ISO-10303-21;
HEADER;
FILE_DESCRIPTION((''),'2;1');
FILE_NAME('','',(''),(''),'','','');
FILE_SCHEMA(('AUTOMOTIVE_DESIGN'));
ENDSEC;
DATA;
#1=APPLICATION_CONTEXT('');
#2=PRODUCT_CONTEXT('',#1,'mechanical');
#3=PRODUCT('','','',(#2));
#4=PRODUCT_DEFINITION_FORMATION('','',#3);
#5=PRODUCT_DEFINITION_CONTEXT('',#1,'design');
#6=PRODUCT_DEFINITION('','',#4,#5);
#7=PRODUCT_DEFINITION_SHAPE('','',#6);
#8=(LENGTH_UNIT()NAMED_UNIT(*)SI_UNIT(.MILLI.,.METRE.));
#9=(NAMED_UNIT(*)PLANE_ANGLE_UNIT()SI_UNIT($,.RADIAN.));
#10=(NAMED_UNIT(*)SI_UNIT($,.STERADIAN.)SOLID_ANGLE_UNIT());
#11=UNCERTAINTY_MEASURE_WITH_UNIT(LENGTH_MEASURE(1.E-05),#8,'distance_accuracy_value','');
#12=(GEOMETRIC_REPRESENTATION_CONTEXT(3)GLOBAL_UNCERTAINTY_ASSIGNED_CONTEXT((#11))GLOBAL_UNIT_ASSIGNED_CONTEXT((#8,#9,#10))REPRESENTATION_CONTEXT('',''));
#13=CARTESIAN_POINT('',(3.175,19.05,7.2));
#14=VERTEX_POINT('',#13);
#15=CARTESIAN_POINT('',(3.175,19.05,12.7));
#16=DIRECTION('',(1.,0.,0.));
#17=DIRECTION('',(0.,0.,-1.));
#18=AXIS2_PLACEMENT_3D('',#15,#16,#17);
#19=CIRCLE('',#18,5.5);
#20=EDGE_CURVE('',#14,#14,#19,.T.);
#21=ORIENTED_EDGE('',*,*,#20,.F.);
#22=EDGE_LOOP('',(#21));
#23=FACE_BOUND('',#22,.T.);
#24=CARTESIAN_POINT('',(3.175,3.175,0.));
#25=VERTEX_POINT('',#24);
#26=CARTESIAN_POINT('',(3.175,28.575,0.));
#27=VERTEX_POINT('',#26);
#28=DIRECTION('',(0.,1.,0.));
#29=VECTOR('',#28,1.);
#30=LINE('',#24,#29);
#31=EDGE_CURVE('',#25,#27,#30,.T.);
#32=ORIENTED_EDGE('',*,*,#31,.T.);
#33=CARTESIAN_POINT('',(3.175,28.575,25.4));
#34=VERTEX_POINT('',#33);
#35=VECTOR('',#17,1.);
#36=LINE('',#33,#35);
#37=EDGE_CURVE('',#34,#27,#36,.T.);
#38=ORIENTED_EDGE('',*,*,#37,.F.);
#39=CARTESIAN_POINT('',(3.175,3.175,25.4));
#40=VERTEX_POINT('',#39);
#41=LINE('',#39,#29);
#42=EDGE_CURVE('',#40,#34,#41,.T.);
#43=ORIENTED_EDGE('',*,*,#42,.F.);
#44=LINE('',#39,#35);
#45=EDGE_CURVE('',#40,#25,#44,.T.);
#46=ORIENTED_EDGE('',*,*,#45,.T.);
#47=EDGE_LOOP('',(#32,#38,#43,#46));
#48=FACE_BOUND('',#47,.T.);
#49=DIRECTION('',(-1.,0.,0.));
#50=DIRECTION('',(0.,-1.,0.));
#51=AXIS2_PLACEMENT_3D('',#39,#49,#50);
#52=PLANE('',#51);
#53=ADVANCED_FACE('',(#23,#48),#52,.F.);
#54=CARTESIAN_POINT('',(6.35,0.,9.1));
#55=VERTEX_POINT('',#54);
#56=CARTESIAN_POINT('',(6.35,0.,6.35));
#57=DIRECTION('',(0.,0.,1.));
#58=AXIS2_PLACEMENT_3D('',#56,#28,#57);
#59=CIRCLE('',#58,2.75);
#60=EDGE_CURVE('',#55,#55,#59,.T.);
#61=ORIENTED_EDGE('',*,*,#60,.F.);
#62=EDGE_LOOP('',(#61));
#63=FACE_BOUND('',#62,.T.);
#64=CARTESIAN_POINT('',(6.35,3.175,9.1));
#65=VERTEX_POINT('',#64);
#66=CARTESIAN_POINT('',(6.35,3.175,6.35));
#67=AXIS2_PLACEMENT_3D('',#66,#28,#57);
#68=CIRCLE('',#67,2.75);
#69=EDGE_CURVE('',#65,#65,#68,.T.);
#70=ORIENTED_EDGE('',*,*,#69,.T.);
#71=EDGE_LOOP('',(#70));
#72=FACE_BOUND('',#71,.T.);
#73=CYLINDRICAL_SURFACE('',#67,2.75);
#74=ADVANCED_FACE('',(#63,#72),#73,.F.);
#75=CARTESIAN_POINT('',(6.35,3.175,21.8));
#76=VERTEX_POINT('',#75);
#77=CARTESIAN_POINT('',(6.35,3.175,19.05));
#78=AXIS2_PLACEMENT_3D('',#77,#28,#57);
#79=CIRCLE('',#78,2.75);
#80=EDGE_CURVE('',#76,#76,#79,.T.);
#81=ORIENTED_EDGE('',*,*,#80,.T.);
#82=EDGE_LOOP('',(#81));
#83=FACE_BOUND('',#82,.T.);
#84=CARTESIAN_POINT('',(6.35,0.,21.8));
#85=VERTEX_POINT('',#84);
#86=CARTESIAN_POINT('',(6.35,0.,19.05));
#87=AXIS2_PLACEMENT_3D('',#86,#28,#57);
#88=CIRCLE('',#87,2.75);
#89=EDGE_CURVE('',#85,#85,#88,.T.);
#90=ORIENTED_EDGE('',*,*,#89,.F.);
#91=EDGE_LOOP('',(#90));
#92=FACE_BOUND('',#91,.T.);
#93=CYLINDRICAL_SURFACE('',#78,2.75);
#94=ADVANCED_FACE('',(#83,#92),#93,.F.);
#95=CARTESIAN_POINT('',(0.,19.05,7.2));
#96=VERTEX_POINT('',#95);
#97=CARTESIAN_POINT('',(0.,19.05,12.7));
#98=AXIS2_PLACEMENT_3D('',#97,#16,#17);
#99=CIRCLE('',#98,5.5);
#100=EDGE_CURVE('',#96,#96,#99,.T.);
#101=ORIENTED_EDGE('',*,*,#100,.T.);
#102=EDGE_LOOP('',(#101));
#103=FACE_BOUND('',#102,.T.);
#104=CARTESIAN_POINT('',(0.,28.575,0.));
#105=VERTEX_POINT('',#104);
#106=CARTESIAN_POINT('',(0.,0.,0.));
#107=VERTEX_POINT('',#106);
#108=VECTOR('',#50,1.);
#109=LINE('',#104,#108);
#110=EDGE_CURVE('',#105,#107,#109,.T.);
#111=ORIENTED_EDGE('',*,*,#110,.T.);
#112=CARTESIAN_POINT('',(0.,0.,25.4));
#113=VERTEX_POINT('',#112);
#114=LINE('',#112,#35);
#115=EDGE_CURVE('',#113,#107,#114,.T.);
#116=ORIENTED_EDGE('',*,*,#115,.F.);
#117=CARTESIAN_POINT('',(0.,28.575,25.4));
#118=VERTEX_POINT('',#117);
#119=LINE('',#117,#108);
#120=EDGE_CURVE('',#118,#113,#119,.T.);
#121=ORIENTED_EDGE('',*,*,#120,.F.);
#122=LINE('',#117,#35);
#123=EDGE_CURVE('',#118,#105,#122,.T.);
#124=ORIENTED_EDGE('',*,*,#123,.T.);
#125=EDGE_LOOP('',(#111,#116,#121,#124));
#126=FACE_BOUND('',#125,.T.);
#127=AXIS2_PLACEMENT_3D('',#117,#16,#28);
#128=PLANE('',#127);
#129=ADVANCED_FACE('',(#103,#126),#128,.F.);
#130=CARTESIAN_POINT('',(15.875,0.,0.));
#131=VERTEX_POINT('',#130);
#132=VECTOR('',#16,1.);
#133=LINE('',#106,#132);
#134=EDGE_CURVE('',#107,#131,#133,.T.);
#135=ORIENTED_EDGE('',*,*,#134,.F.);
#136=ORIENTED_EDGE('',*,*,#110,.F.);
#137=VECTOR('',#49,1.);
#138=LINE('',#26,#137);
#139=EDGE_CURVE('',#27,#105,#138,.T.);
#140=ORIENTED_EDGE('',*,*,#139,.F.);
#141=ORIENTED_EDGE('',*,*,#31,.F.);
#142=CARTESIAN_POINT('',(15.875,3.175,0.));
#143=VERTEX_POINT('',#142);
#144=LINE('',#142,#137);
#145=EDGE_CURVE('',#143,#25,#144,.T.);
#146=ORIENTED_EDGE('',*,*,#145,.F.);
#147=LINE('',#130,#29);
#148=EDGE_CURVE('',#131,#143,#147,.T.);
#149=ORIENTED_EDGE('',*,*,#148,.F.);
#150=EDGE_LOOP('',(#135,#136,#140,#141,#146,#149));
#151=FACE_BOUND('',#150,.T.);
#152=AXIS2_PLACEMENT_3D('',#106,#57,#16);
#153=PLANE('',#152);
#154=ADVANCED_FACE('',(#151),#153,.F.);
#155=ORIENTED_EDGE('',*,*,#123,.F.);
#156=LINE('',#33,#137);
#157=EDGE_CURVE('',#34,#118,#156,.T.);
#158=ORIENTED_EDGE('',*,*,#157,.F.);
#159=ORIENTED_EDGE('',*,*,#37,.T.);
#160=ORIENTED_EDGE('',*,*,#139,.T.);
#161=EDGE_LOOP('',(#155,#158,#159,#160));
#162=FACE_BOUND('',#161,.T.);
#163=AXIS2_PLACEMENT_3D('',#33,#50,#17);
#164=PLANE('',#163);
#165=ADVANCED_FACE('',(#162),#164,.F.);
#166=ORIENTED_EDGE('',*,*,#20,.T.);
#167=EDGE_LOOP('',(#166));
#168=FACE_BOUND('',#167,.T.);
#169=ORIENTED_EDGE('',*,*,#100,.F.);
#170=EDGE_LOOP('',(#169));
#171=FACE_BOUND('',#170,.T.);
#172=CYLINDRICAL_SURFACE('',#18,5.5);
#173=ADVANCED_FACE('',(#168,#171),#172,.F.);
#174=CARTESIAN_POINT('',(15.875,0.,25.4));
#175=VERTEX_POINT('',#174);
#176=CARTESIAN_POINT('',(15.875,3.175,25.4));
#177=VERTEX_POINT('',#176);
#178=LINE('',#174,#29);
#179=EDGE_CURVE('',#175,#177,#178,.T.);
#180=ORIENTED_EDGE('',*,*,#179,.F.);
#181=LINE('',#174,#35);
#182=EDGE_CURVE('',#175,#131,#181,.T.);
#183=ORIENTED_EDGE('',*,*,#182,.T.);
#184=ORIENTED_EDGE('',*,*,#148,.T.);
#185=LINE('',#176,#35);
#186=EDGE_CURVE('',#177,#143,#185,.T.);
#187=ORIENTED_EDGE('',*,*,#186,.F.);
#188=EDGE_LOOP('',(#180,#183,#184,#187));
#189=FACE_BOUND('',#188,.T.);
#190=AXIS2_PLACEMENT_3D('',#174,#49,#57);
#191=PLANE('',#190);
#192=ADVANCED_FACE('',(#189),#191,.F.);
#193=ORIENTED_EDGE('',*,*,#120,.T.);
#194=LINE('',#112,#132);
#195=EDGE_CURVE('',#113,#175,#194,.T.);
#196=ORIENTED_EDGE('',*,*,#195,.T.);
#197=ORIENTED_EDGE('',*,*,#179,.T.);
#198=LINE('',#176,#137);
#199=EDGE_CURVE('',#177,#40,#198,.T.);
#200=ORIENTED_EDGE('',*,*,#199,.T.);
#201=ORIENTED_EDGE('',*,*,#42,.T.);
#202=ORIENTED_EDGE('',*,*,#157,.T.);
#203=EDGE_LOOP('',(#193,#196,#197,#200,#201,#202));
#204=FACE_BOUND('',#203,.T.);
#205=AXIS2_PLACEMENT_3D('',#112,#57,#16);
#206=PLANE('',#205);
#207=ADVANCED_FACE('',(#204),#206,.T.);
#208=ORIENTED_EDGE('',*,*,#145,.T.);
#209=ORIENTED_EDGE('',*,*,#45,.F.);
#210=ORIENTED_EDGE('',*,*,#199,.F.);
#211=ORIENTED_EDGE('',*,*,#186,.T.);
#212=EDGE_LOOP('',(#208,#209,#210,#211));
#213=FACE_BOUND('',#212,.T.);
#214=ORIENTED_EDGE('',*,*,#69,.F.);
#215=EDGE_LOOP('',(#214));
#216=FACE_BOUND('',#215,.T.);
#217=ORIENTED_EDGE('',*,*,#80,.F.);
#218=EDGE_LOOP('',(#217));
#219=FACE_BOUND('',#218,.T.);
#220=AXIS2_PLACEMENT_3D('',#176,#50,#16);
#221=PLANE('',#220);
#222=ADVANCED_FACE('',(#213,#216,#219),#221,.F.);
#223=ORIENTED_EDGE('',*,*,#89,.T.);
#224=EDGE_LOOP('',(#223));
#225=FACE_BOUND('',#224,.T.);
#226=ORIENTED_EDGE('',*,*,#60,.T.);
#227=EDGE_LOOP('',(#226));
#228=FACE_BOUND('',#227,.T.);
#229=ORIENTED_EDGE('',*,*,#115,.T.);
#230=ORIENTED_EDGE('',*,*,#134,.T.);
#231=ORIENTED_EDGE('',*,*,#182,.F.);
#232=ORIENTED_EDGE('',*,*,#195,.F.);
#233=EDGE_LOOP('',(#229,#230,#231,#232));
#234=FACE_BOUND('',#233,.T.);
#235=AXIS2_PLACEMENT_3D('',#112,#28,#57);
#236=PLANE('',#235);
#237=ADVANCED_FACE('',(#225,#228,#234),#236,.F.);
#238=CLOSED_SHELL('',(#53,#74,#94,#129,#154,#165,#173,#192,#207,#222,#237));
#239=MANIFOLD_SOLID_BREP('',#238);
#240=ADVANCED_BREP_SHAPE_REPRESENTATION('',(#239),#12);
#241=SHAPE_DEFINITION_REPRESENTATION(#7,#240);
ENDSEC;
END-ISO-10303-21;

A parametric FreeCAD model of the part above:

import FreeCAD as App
import Part
import Sketcher
Q = App.Units.Quantity

doc = App.newDocument("Part")
body = doc.addObject("PartDesign::Body", "Body")

# Sketch on XY plane
sketch1 = body.newObject("Sketcher::SketchObject", "Sketch")
sketch1.AttachmentSupport = (doc.getObject("XY_Plane"), [""])
sketch1.MapMode = "FlatFace"
sketch1.addGeometry(Part.LineSegment(App.Vector(0, 0, 0), App.Vector(15.9, 0, 0)), False)
sketch1.addGeometry(Part.LineSegment(App.Vector(15.9, 0, 0), App.Vector(15.9, 3.2, 0)), False)
sketch1.addGeometry(Part.LineSegment(App.Vector(15.9, 3.2, 0), App.Vector(3.2, 3.2, 0)), False)
sketch1.addGeometry(Part.LineSegment(App.Vector(3.2, 3.2, 0), App.Vector(3.2, 28.6, 0)), False)
sketch1.addGeometry(Part.LineSegment(App.Vector(3.2, 28.6, 0), App.Vector(0, 28.6, 0)), False)
sketch1.addGeometry(Part.LineSegment(App.Vector(0, 28.6, 0), App.Vector(0, 0, 0)), False)
sketch1.addConstraint(Sketcher.Constraint("Coincident", 0, 2, 1, 1))
sketch1.addConstraint(Sketcher.Constraint("Coincident", 1, 2, 2, 1))
sketch1.addConstraint(Sketcher.Constraint("Coincident", 2, 2, 3, 1))
sketch1.addConstraint(Sketcher.Constraint("Coincident", 3, 2, 4, 1))
sketch1.addConstraint(Sketcher.Constraint("Coincident", 4, 2, 5, 1))
sketch1.addConstraint(Sketcher.Constraint("Coincident", 5, 2, 0, 1))
sketch1.addConstraint(Sketcher.Constraint("Horizontal", 0))
sketch1.addConstraint(Sketcher.Constraint("Vertical", 1))
sketch1.addConstraint(Sketcher.Constraint("Horizontal", 2))
sketch1.addConstraint(Sketcher.Constraint("Vertical", 3))
sketch1.addConstraint(Sketcher.Constraint("Horizontal", 4))
sketch1.addConstraint(Sketcher.Constraint("Vertical", 5))
sketch1.addConstraint(Sketcher.Constraint("Coincident", 5, 2, -1, 1))
sketch1.addConstraint(Sketcher.Constraint("Equal", 4, 1))
sketch1.addConstraint(Sketcher.Constraint("DistanceY", 3, 1, 3, 2, Q("1 in")))
sketch1.addConstraint(Sketcher.Constraint("DistanceX", 2, 2, 2, 1, Q("0.5 in")))
sketch1.addConstraint(Sketcher.Constraint("DistanceX", 0, 1, 0, 2, Q("0.625 in")))
pad1 = body.newObject("PartDesign::Pad", "Pad")
pad1.Profile = sketch1
pad1.Length = Q("1 in")

# Sketch on YZ plane
sketch2 = body.newObject("Sketcher::SketchObject", "Sketch001")
sketch2.AttachmentSupport = (doc.getObject("YZ_Plane"), [""])
sketch2.MapMode = "FlatFace"
sketch2.AttachmentOffset = App.Placement(App.Vector(0, 0, 0.125 * 25.4), App.Rotation())
sketch2.addGeometry(Part.Circle(App.Vector(19, 13, 0), App.Vector(0, 0, 1), 6), False)
sketch2.addConstraint(Sketcher.Constraint("DistanceY", -1, 1, 0, 3, Q("0.5 in")))
sketch2.addConstraint(Sketcher.Constraint("Diameter", 0, Q("11 mm")))
sketch2.addConstraint(Sketcher.Constraint("DistanceX", -1, 1, 0, 3, Q("0.75 in")))
doc.recompute()
hole = body.newObject("PartDesign::Hole", "Hole")
hole.Profile = sketch2
hole.ThreadType = "None"
hole.Diameter = 11
hole.DepthType = "ThroughAll"

# Sketch on XZ plane
sketch3 = body.newObject("Sketcher::SketchObject", "Sketch002")
sketch3.AttachmentSupport = (doc.getObject("XZ_Plane"), [""])
sketch3.MapMode = "FlatFace"
sketch3.AttachmentOffset = App.Placement(App.Vector(0, 0, -0.125 * 25.4), App.Rotation())
sketch3.addGeometry(Part.Circle(App.Vector(6.3, 19.1, 0), App.Vector(0, 0, 1), 2.8), False)
sketch3.addGeometry(Part.Circle(App.Vector(6.3, 6.3, 0), App.Vector(0, 0, 1), 2.8), False)
sketch3.addConstraint(Sketcher.Constraint("Equal", 0, 1))
sketch3.addConstraint(Sketcher.Constraint("Vertical", 0, 3, 1, 3))
sketch3.addConstraint(Sketcher.Constraint("DistanceY", 1, 3, 0, 3, Q("0.5 in")))
sketch3.addConstraint(Sketcher.Constraint("Diameter", 0, Q("5.5 mm")))
sketch3.addConstraint(Sketcher.Constraint("DistanceX", -1, 1, 0, 3, Q("0.25 in")))
sketch3.addConstraint(Sketcher.Constraint("DistanceY", -1, 1, 0, 3, Q("0.75 in")))
doc.recompute()
hole2 = body.newObject("PartDesign::Hole", "Hole001")
hole2.Profile = sketch3
hole2.ThreadType = "None"
hole2.Diameter = 5.5
hole2.DepthType = "ThroughAll"
hole2.Reversed = True

doc.recompute()
